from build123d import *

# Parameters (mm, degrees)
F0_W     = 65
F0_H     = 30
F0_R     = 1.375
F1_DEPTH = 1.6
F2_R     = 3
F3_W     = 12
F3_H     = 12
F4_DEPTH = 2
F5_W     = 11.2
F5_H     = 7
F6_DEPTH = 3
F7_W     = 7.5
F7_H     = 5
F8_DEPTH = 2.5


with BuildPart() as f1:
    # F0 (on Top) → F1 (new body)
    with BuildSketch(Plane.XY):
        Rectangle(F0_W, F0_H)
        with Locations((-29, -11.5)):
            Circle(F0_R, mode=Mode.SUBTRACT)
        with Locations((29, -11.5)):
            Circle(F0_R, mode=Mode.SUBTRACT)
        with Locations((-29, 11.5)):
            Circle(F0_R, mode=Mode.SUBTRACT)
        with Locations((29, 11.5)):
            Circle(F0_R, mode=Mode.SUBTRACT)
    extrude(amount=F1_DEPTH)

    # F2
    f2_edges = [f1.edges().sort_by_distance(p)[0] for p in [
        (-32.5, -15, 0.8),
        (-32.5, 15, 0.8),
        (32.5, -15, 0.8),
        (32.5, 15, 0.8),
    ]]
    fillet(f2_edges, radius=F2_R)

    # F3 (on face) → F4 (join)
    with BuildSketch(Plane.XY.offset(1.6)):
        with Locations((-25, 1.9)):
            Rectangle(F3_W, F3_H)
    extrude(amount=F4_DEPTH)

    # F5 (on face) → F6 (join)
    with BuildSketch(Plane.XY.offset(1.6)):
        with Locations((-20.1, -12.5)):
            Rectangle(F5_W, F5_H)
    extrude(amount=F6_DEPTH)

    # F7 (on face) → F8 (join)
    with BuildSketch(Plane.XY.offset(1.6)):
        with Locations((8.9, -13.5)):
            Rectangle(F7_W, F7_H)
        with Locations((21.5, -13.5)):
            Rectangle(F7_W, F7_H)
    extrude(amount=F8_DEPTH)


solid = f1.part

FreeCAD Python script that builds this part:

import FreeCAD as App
import Part
import Sketcher
from FreeCAD import Vector
Q = App.Units.Quantity


def edges_at(feature, points):
    """Names of the edges that pass closest to the given points."""
    edges = feature.Shape.Edges
    near = lambda p: min(range(len(edges)), key=lambda i: edges[i].distToShape(Part.Vertex(*p))[0])
    return sorted({f"Edge{near(p) + 1}" for p in points})

doc = App.newDocument("Part")
params = doc.addObject("Spreadsheet::Sheet", "Params")
for row, (alias, value) in enumerate([
    ("sketch1_diameter", "2.75 mm"),
    ("sketch1_width", "65 mm"),
    ("sketch1_height", "30 mm"),
    ("pad1_length", "1.6 mm"),
    ("fillet_radius", "3 mm"),
    ("sketch2_width", "12 mm"),
    ("pad2_length", "2 mm"),
    ("sketch3_height", "7 mm"),
    ("sketch3_width", "11.2 mm"),
    ("pad3_length", "3 mm"),
    ("sketch4_height", "5 mm"),
    ("sketch4_width", "7.5 mm"),
    ("pad4_length", "2.5 mm"),
], start=1):
    params.set(f"A{row}", alias)
    params.set(f"B{row}", "=" + value)
    params.setAlias(f"B{row}", alias)

body = doc.addObject("PartDesign::Body", "Body")

sketch1 = body.newObject("Sketcher::SketchObject", "Sketch")
sketch1.AttachmentSupport = (doc.getObject("XY_Plane"), [""])
sketch1.MapMode = "FlatFace"
sketch1.addGeometry([
    Part.LineSegment(Vector(-32.5, 15, 0), Vector(-32.5, -15, 0)),
    Part.LineSegment(Vector(-32.5, -15, 0), Vector(32.5, -15, 0)),
    Part.LineSegment(Vector(32.5, -15, 0), Vector(32.5, 15, 0)),
    Part.LineSegment(Vector(32.5, 15, 0), Vector(-32.5, 15, 0)),
    Part.Circle(Vector(-29, -11.5, 0), Vector(0, 0, 1), 1.4),
    Part.Circle(Vector(29, -11.5, 0), Vector(0, 0, 1), 1.4),
    Part.Circle(Vector(-29, 11.5, 0), Vector(0, 0, 1), 1.4),
    Part.Circle(Vector(29, 11.5, 0), Vector(0, 0, 1), 1.4),
], False)
sketch1.addConstraint([
    Sketcher.Constraint("Coincident", 0, 2, 1, 1),
    Sketcher.Constraint("Coincident", 1, 2, 2, 1),
    Sketcher.Constraint("Coincident", 2, 2, 3, 1),
    Sketcher.Constraint("Coincident", 3, 2, 0, 1),
    Sketcher.Constraint("Vertical", 0),
    Sketcher.Constraint("Horizontal", 1),
    Sketcher.Constraint("Vertical", 2),
    Sketcher.Constraint("Horizontal", 3),
    Sketcher.Constraint("Equal", 4, 5),
    Sketcher.Constraint("Equal", 5, 6),
    Sketcher.Constraint("Equal", 6, 7),
    Sketcher.Constraint("Symmetric", 5, 3, 6, 3, -1, 1),
    Sketcher.Constraint("Symmetric", 4, 3, 7, 3, -1, 1),
    Sketcher.Constraint("Symmetric", 0, 2, 2, 2, -1, 1),
    Sketcher.Constraint("Symmetric", 4, 3, 5, 3, -2),
    Sketcher.Constraint("Diameter", 4, Q("2.75 mm")),
    Sketcher.Constraint("DistanceX", 1, 1, 1, 2, Q("65 mm")),
    Sketcher.Constraint("DistanceY", 0, 2, 0, 1, Q("30 mm")),
    Sketcher.Constraint("DistanceX", 4, 3, -1, 1, Q("29 mm")),
    Sketcher.Constraint("DistanceY", 4, 3, 6, 3, Q("23 mm")),
])
sketch1.setExpression("Constraints[15]", "Params.sketch1_diameter")
sketch1.setExpression("Constraints[16]", "Params.sketch1_width")
sketch1.setExpression("Constraints[17]", "Params.sketch1_height")
pad1 = body.newObject("PartDesign::Pad", "Pad")
pad1.Profile = sketch1
pad1.setExpression("Length", "Params.pad1_length")
doc.recompute()

fillet = body.newObject("PartDesign::Fillet", "Fillet")
fillet.Base = (pad1, edges_at(pad1, [
    (-32.5, -15, 0.8),
    (-32.5, 15, 0.8),
    (32.5, -15, 0.8),
    (32.5, 15, 0.8),
]))
fillet.setExpression("Radius", "Params.fillet_radius")

sketch2 = body.newObject("Sketcher::SketchObject", "Sketch001")
sketch2.AttachmentSupport = (doc.getObject("XY_Plane"), [""])
sketch2.MapMode = "FlatFace"
sketch2.AttachmentOffset = App.Placement(Vector(0, 0, 1.6), App.Rotation())
sketch2.addGeometry([
    Part.LineSegment(Vector(-31, 8, 0), Vector(-31, -4, 0)),
    Part.LineSegment(Vector(-31, -4, 0), Vector(-19, -4, 0)),
    Part.LineSegment(Vector(-19, -4, 0), Vector(-19, 8, 0)),
    Part.LineSegment(Vector(-19, 8, 0), Vector(-31, 8, 0)),
], False)
sketch2.addConstraint([
    Sketcher.Constraint("Coincident", 0, 2, 1, 1),
    Sketcher.Constraint("Coincident", 1, 2, 2, 1),
    Sketcher.Constraint("Coincident", 2, 2, 3, 1),
    Sketcher.Constraint("Coincident", 3, 2, 0, 1),
    Sketcher.Constraint("Vertical", 0),
    Sketcher.Constraint("Horizontal", 1),
    Sketcher.Constraint("Vertical", 2),
    Sketcher.Constraint("Horizontal", 3),
    Sketcher.Constraint("Equal", 3, 0),
    Sketcher.Constraint("DistanceX", 1, 1, 1, 2, Q("12 mm")),
    Sketcher.Constraint("DistanceX", 0, 2, -1, 1, Q("31 mm")),
    Sketcher.Constraint("DistanceY", 0, 2, -1, 1, Q("4.1 mm")),
])
sketch2.setExpression("Constraints[9]", "Params.sketch2_width")
pad2 = body.newObject("PartDesign::Pad", "Pad001")
pad2.Profile = sketch2
pad2.setExpression("Length", "Params.pad2_length")

sketch3 = body.newObject("Sketcher::SketchObject", "Sketch002")
sketch3.AttachmentSupport = (doc.getObject("XY_Plane"), [""])
sketch3.MapMode = "FlatFace"
sketch3.AttachmentOffset = App.Placement(Vector(0, 0, 1.6), App.Rotation())
sketch3.addGeometry([
    Part.LineSegment(Vector(-26, -9, 0), Vector(-26, -16, 0)),
    Part.LineSegment(Vector(-26, -16, 0), Vector(-14, -16, 0)),
    Part.LineSegment(Vector(-14, -16, 0), Vector(-14, -9, 0)),
    Part.LineSegment(Vector(-14, -9, 0), Vector(-26, -9, 0)),
], False)
sketch3.addConstraint([
    Sketcher.Constraint("Coincident", 0, 2, 1, 1),
    Sketcher.Constraint("Coincident", 1, 2, 2, 1),
    Sketcher.Constraint("Coincident", 2, 2, 3, 1),
    Sketcher.Constraint("Coincident", 3, 2, 0, 1),
    Sketcher.Constraint("Vertical", 0),
    Sketcher.Constraint("Horizontal", 1),
    Sketcher.Constraint("Vertical", 2),
    Sketcher.Constraint("Horizontal", 3),
    Sketcher.Constraint("DistanceY", 0, 2, 0, 1, Q("7 mm")),
    Sketcher.Constraint("DistanceX", 1, 1, 1, 2, Q("11.2 mm")),
    Sketcher.Constraint("DistanceY", 0, 2, -1, 1, Q("16 mm")),
    Sketcher.Constraint("DistanceX", 0, 2, -1, 1, Q("25.7 mm")),
])
sketch3.setExpression("Constraints[8]", "Params.sketch3_height")
sketch3.setExpression("Constraints[9]", "Params.sketch3_width")
pad3 = body.newObject("PartDesign::Pad", "Pad002")
pad3.Profile = sketch3
pad3.setExpression("Length", "Params.pad3_length")

sketch4 = body.newObject("Sketcher::SketchObject", "Sketch003")
sketch4.AttachmentSupport = (doc.getObject("XY_Plane"), [""])
sketch4.MapMode = "FlatFace"
sketch4.AttachmentOffset = App.Placement(Vector(0, 0, 1.6), App.Rotation())
sketch4.addGeometry([
    Part.LineSegment(Vector(5, -11, 0), Vector(5, -16, 0)),
    Part.LineSegment(Vector(5, -16, 0), Vector(13, -16, 0)),
    Part.LineSegment(Vector(13, -16, 0), Vector(13, -11, 0)),
    Part.LineSegment(Vector(13, -11, 0), Vector(5, -11, 0)),
    Part.LineSegment(Vector(18, -11, 0), Vector(18, -16, 0)),
    Part.LineSegment(Vector(18, -16, 0), Vector(25, -16, 0)),
    Part.LineSegment(Vector(25, -16, 0), Vector(25, -11, 0)),
    Part.LineSegment(Vector(25, -11, 0), Vector(18, -11, 0)),
], False)
sketch4.addConstraint([
    Sketcher.Constraint("Coincident", 0, 2, 1, 1),
    Sketcher.Constraint("Coincident", 1, 2, 2, 1),
    Sketcher.Constraint("Coincident", 2, 2, 3, 1),
    Sketcher.Constraint("Coincident", 3, 2, 0, 1),
    Sketcher.Constraint("Coincident", 4, 2, 5, 1),
    Sketcher.Constraint("Coincident", 5, 2, 6, 1),
    Sketcher.Constraint("Coincident", 6, 2, 7, 1),
    Sketcher.Constraint("Coincident", 7, 2, 4, 1),
    Sketcher.Constraint("Vertical", 0),
    Sketcher.Constraint("Horizontal", 1),
    Sketcher.Constraint("Vertical", 2),
    Sketcher.Constraint("Horizontal", 3),
    Sketcher.Constraint("Vertical", 4),
    Sketcher.Constraint("Horizontal", 5),
    Sketcher.Constraint("Vertical", 6),
    Sketcher.Constraint("Horizontal", 7),
    Sketcher.Constraint("Horizontal", 1, 2, 4, 2),
    Sketcher.Constraint("Horizontal", 3, 2, 6, 2),
    Sketcher.Constraint("Equal", 3, 5),
    Sketcher.Constraint("DistanceY", 0, 2, 0, 1, Q("5 mm")),
    Sketcher.Constraint("DistanceX", 1, 1, 1, 2, Q("7.5 mm")),
    Sketcher.Constraint("DistanceY", 0, 2, -1, 1, Q("16 mm")),
    Sketcher.Constraint("DistanceX", 1, 2, 4, 2, Q("5.1 mm")),
    Sketcher.Constraint("DistanceX", -1, 1, 0, 2, Q("5.15 mm")),
])
sketch4.setExpression("Constraints[19]", "Params.sketch4_height")
sketch4.setExpression("Constraints[20]", "Params.sketch4_width")
pad4 = body.newObject("PartDesign::Pad", "Pad003")
pad4.Profile = sketch4
pad4.setExpression("Length", "Params.pad4_length")

doc.recompute()
